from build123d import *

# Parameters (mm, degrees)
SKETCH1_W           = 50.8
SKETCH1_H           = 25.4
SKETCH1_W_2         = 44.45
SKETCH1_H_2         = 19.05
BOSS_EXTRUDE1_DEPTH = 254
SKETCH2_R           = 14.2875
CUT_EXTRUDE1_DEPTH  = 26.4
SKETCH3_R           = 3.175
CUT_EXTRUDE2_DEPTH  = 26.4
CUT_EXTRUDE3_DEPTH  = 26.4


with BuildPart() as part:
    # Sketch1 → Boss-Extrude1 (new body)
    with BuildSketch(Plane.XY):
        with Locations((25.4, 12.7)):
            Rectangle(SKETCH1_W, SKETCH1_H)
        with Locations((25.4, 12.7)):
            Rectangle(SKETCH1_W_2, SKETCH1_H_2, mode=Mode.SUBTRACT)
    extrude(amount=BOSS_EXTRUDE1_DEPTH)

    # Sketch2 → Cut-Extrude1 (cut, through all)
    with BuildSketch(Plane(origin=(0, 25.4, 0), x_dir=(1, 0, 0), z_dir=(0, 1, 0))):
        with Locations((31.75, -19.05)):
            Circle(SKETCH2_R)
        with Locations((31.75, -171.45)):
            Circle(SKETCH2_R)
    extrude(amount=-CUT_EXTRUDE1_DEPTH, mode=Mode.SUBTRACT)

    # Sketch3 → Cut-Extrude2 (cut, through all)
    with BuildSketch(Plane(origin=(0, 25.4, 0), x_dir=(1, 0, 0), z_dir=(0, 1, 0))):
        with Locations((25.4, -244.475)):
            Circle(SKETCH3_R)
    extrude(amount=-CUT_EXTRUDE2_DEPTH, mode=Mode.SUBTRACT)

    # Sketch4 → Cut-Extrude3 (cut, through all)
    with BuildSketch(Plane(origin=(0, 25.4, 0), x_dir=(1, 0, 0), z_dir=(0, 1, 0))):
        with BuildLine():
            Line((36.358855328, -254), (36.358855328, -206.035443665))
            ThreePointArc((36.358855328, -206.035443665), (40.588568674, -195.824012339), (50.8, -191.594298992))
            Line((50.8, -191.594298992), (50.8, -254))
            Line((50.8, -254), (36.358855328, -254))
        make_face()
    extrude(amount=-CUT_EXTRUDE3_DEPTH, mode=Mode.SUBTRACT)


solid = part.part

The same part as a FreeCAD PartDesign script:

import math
import FreeCAD as App
import Part
import Sketcher
Q = App.Units.Quantity

doc = App.newDocument("Part")
body = doc.addObject("PartDesign::Body", "Body")

# Sketch on XY plane
sketch1 = doc.addObject("Sketcher::SketchObject", "Sketch")
body.addObject(sketch1)
sketch1.AttachmentSupport = (doc.XY_Plane, [""])
sketch1.MapMode = "FlatFace"
sketch1.addGeometry(Part.LineSegment(App.Vector(0, 25, 0), App.Vector(0, 0, 0)), False)
sketch1.addGeometry(Part.LineSegment(App.Vector(0, 0, 0), App.Vector(51, 0, 0)), False)
sketch1.addGeometry(Part.LineSegment(App.Vector(51, 0, 0), App.Vector(51, 25, 0)), False)
sketch1.addGeometry(Part.LineSegment(App.Vector(51, 25, 0), App.Vector(0, 25, 0)), False)
sketch1.addGeometry(Part.LineSegment(App.Vector(48, 3, 0), App.Vector(3, 3, 0)), False)
sketch1.addGeometry(Part.LineSegment(App.Vector(3, 3, 0), App.Vector(3, 22, 0)), False)
sketch1.addGeometry(Part.LineSegment(App.Vector(3, 22, 0), App.Vector(48, 22, 0)), False)
sketch1.addGeometry(Part.LineSegment(App.Vector(48, 22, 0), App.Vector(48, 3, 0)), False)
sketch1.addConstraint(Sketcher.Constraint("Coincident", 0, 2, 1, 1))
sketch1.addConstraint(Sketcher.Constraint("Coincident", 1, 2, 2, 1))
sketch1.addConstraint(Sketcher.Constraint("Coincident", 2, 2, 3, 1))
sketch1.addConstraint(Sketcher.Constraint("Coincident", 3, 2, 0, 1))
sketch1.addConstraint(Sketcher.Constraint("Coincident", 4, 2, 5, 1))
sketch1.addConstraint(Sketcher.Constraint("Coincident", 5, 2, 6, 1))
sketch1.addConstraint(Sketcher.Constraint("Coincident", 6, 2, 7, 1))
sketch1.addConstraint(Sketcher.Constraint("Coincident", 7, 2, 4, 1))
sketch1.addConstraint(Sketcher.Constraint("Vertical", 0))
sketch1.addConstraint(Sketcher.Constraint("Horizontal", 1))
sketch1.addConstraint(Sketcher.Constraint("Vertical", 2))
sketch1.addConstraint(Sketcher.Constraint("Horizontal", 3))
sketch1.addConstraint(Sketcher.Constraint("Horizontal", 4))
sketch1.addConstraint(Sketcher.Constraint("Vertical", 5))
sketch1.addConstraint(Sketcher.Constraint("Horizontal", 6))
sketch1.addConstraint(Sketcher.Constraint("Vertical", 7))
sketch1.addConstraint(Sketcher.Constraint("Coincident", 0, 2, -1, 1))
sketch1.addConstraint(Sketcher.Constraint("DistanceX", 1, 1, 1, 2, Q("2 in")))
sketch1.addConstraint(Sketcher.Constraint("DistanceY", 0, 2, 0, 1, Q("1 in")))
sketch1.addConstraint(Sketcher.Constraint("DistanceX", 4, 2, 4, 1, Q("1.75 in")))
sketch1.addConstraint(Sketcher.Constraint("DistanceY", 5, 1, 5, 2, Q("0.75 in")))
sketch1.addConstraint(Sketcher.Constraint("DistanceX", -1, 1, 4, 2, Q("0.125 in")))
sketch1.addConstraint(Sketcher.Constraint("DistanceY", -1, 1, 4, 2, Q("0.125 in")))
pad1 = doc.addObject("PartDesign::Pad", "Pad")
body.addObject(pad1)
pad1.Profile = sketch1
pad1.Length = Q("10 in")

# Sketch on XZ plane
sketch2 = doc.addObject("Sketcher::SketchObject", "Sketch001")
body.addObject(sketch2)
sketch2.AttachmentSupport = (doc.XZ_Plane, [""])
sketch2.MapMode = "FlatFace"
sketch2.AttachmentOffset = App.Placement(App.Vector(0, 0, -1 * 25.4), App.Rotation())
sketch2.addGeometry(Part.Circle(App.Vector(32, 19, 0), App.Vector(0, 0, 1), 14), False)
sketch2.addGeometry(Part.Circle(App.Vector(32, 171, 0), App.Vector(0, 0, 1), 14), False)
sketch2.addConstraint(Sketcher.Constraint("Equal", 0, 1))
sketch2.addConstraint(Sketcher.Constraint("Vertical", 0, 3, 1, 3))
sketch2.addConstraint(Sketcher.Constraint("Diameter", 0, Q("1.125 in")))
sketch2.addConstraint(Sketcher.Constraint("DistanceY", 0, 3, 1, 3, Q("6 in")))
sketch2.addConstraint(Sketcher.Constraint("DistanceX", -1, 1, 0, 3, Q("1.25 in")))
sketch2.addConstraint(Sketcher.Constraint("DistanceY", -1, 1, 0, 3, Q("0.75 in")))
pocket1 = doc.addObject("PartDesign::Pocket", "Pocket")
body.addObject(pocket1)
pocket1.Profile = sketch2
pocket1.Type = "ThroughAll"
pocket1.Reversed = True

# Sketch on XZ plane
sketch3 = doc.addObject("Sketcher::SketchObject", "Sketch002")
body.addObject(sketch3)
sketch3.AttachmentSupport = (doc.XZ_Plane, [""])
sketch3.MapMode = "FlatFace"
sketch3.AttachmentOffset = App.Placement(App.Vector(0, 0, -1 * 25.4), App.Rotation())
sketch3.addGeometry(Part.Circle(App.Vector(25.4, 244.5, 0), App.Vector(0, 0, 1), 3.2), False)
sketch3.addConstraint(Sketcher.Constraint("Diameter", 0, Q("0.25 in")))
sketch3.addConstraint(Sketcher.Constraint("DistanceX", -1, 1, 0, 3, Q("1 in")))
sketch3.addConstraint(Sketcher.Constraint("DistanceY", -1, 1, 0, 3, Q("9.625 in")))
pocket2 = doc.addObject("PartDesign::Pocket", "Pocket001")
body.addObject(pocket2)
pocket2.Profile = sketch3
pocket2.Type = "ThroughAll"
pocket2.Reversed = True

# Sketch on XZ plane
sketch4 = doc.addObject("Sketcher::SketchObject", "Sketch003")
body.addObject(sketch4)
sketch4.AttachmentSupport = (doc.XZ_Plane, [""])
sketch4.MapMode = "FlatFace"
sketch4.AttachmentOffset = App.Placement(App.Vector(0, 0, -1 * 25.4), App.Rotation())
sketch4.addGeometry(Part.LineSegment(App.Vector(36, 206, 0), App.Vector(36, 254, 0)), False)
sketch4.addGeometry(Part.LineSegment(App.Vector(36, 254, 0), App.Vector(51, 254, 0)), False)
sketch4.addGeometry(Part.LineSegment(App.Vector(51, 254, 0), App.Vector(51, 192, 0)), False)
sketch4.addGeometry(Part.ArcOfCircle(Part.Circle(App.Vector(51, 206, 0), App.Vector(0, 0, 1), 14), math.radians(180), math.radians(270)), False)
sketch4.addConstraint(Sketcher.Constraint("Coincident", 0, 2, 1, 1))
sketch4.addConstraint(Sketcher.Constraint("Coincident", 1, 2, 2, 1))
sketch4.addConstraint(Sketcher.Constraint("Coincident", 2, 2, 3, 2))
sketch4.addConstraint(Sketcher.Constraint("Tangent", 3, 1, 0, 1))
sketch4.addConstraint(Sketcher.Constraint("Vertical", 0))
sketch4.addConstraint(Sketcher.Constraint("Horizontal", 1))
sketch4.addConstraint(Sketcher.Constraint("Vertical", 2))
sketch4.addConstraint(Sketcher.Constraint("Vertical", 3, 3, 1, 2))
sketch4.addConstraint(Sketcher.Constraint("DistanceX", -1, 1, 3, 3, Q("2 in")))
sketch4.addConstraint(Sketcher.Constraint("DistanceY", -1, 1, 0, 2, Q("10 in")))
sketch4.addConstraint(Sketcher.Constraint("DistanceY", 2, 2, 2, 1, Q("62.405701 mm")))
sketch4.addConstraint(Sketcher.Constraint("Radius", 3, Q("14.441145 mm")))
pocket3 = doc.addObject("PartDesign::Pocket", "Pocket002")
body.addObject(pocket3)
pocket3.Profile = sketch4
pocket3.Type = "ThroughAll"
pocket3.Reversed = True

doc.recompute()
